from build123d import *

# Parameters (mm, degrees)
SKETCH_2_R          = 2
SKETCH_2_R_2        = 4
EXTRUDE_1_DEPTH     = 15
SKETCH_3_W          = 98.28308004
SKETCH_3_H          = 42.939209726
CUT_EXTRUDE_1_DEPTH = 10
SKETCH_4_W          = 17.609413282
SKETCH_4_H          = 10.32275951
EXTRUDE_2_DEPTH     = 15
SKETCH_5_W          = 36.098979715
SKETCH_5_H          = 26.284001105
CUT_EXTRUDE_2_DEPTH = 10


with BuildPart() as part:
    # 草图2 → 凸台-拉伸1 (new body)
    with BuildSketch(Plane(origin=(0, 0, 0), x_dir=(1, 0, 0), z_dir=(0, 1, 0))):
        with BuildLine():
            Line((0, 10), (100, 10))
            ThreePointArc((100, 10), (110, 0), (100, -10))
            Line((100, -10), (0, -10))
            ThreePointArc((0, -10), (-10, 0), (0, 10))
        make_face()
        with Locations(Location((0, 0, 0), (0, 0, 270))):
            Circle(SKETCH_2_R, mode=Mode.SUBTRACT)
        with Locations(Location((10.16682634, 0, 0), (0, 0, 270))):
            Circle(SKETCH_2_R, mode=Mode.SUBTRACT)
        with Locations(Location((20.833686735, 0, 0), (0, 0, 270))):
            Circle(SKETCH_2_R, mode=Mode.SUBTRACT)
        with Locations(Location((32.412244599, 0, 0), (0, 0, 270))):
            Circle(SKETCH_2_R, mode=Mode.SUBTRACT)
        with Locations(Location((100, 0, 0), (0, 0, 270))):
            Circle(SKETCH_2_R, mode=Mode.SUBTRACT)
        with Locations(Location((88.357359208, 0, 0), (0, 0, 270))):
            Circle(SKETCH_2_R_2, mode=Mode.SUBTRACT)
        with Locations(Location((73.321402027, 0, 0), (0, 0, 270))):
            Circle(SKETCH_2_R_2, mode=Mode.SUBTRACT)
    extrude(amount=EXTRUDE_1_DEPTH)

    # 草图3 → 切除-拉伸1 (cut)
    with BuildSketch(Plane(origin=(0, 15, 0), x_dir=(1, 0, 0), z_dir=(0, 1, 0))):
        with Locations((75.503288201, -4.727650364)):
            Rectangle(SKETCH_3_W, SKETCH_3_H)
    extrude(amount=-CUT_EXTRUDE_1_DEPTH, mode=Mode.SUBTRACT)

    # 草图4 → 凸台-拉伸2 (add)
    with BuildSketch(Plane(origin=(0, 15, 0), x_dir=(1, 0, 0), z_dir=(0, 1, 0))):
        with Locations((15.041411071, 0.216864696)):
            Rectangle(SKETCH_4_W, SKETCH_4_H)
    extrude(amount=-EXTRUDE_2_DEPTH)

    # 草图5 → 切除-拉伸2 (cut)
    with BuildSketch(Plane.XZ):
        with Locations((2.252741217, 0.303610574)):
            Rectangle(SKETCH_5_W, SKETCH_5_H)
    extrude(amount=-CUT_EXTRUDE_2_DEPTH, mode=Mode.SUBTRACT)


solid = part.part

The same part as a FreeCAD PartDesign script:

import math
import FreeCAD as App
import Part
import Sketcher

V = App.Vector


def add_polygon(sketch, points):
    """Adds a closed chain of lines whose ends are joined by coincident constraints."""
    first, n = sketch.GeometryCount, len(points)
    for a, b in zip(points, points[1:] + points[:1]):
        sketch.addGeometry(Part.LineSegment(App.Vector(*a, 0), App.Vector(*b, 0)), False)
    for i in range(n):
        sketch.addConstraint(Sketcher.Constraint("Coincident", first + i, 2, first + (i + 1) % n, 1))

doc = App.newDocument("Part")
body = doc.addObject("PartDesign::Body", "Body")

# Sketch on XZ plane
sketch1 = doc.addObject("Sketcher::SketchObject", "Sketch")
body.addObject(sketch1)
sketch1.AttachmentSupport = (doc.XZ_Plane, [""])
sketch1.MapMode = "FlatFace"
sketch1.addGeometry([
    Part.LineSegment(V(100, -10, 0), V(0, -10, 0)),  # 0
    Part.ArcOfCircle(Part.Circle(V(0, 0, 0), V(0, 0, 1), 10), math.radians(90), math.radians(270)),  # 1
    Part.LineSegment(V(0, 10, 0), V(100, 10, 0)),  # 2
    Part.ArcOfCircle(Part.Circle(V(100, 0, 0), V(0, 0, 1), 10), math.radians(-90), math.radians(90)),  # 3
    Part.Circle(V(100, 0, 0), V(0, 0, 1), 2),  # 4
    Part.Circle(V(88.357359, 0, 0), V(0, 0, 1), 4),  # 5
    Part.Circle(V(73.321402, 0, 0), V(0, 0, 1), 4),  # 6
    Part.Circle(V(32.412245, 0, 0), V(0, 0, 1), 2),  # 7
    Part.Circle(V(20.833687, 0, 0), V(0, 0, 1), 2),  # 8
    Part.Circle(V(10.166826, 0, 0), V(0, 0, 1), 2),  # 9
    Part.Circle(V(0, 0, 0), V(0, 0, 1), 2),  # 10
], False)
sketch1.addConstraint([
    Sketcher.Constraint("Tangent", 0, 2, 1, 2),
    Sketcher.Constraint("Tangent", 1, 1, 2, 1),
    Sketcher.Constraint("Tangent", 2, 2, 3, 2),
    Sketcher.Constraint("Tangent", 3, 1, 0, 1),
    Sketcher.Constraint("Horizontal", 0),
    Sketcher.Constraint("Horizontal", 2),
    Sketcher.Constraint("Coincident", 1, 3, -1, 1),
    Sketcher.Constraint("Coincident", 10, 3, -1, 1),
    Sketcher.Constraint("Coincident", 4, 3, 3, 3),
    Sketcher.Constraint("Equal", 5, 6),
    Sketcher.Constraint("Equal", 4, 7),
    Sketcher.Constraint("Equal", 7, 8),
    Sketcher.Constraint("Equal", 8, 9),
    Sketcher.Constraint("Equal", 9, 10),
    Sketcher.Constraint("PointOnObject", 5, 3, -1),
    Sketcher.Constraint("PointOnObject", 6, 3, -1),
    Sketcher.Constraint("PointOnObject", 7, 3, -1),
    Sketcher.Constraint("PointOnObject", 8, 3, -1),
    Sketcher.Constraint("PointOnObject", 9, 3, -1),
    Sketcher.Constraint("Diameter", 4, 4.0),
    Sketcher.Constraint("Diameter", 5, 8.0),
    Sketcher.Constraint("Radius", 1, 10.0),
    Sketcher.Constraint("DistanceX", 0, 2, 0, 1, 100.0),
    Sketcher.Constraint("DistanceX", -1, 1, 5, 3, 88.357359),
    Sketcher.Constraint("DistanceX", 9, 3, 8, 3, 10.66686),
    Sketcher.Constraint("DistanceX", 9, 3, 7, 3, 22.245418),
    Sketcher.Constraint("DistanceX", -1, 1, 6, 3, 73.321402),
    Sketcher.Constraint("DistanceX", -1, 1, 7, 3, 32.412245),
])
pad1 = doc.addObject("PartDesign::Pad", "Pad")
body.addObject(pad1)
pad1.Profile = sketch1
pad1.Length = 15
pad1.Reversed = True

# Sketch on XZ plane
sketch2 = doc.addObject("Sketcher::SketchObject", "Sketch001")
body.addObject(sketch2)
sketch2.AttachmentSupport = (doc.XZ_Plane, [""])
sketch2.MapMode = "FlatFace"
sketch2.AttachmentOffset = App.Placement(V(0, 0, -15), App.Rotation())
add_polygon(sketch2, [(26.361748, -16.741954), (26.361748, 26.197255), (124.644828, 26.197255), (124.644828, -16.741954)])  # lines 0-3
sketch2.addConstraint([
    Sketcher.Constraint("Vertical", 0),
    Sketcher.Constraint("Horizontal", 1),
    Sketcher.Constraint("Vertical", 2),
    Sketcher.Constraint("Horizontal", 3),
    Sketcher.Constraint("DistanceX", 1, 1, 1, 2, 98.28308),
    Sketcher.Constraint("DistanceY", 0, 1, 0, 2, 42.93921),
    Sketcher.Constraint("DistanceX", -1, 1, 0, 2, 26.361748),
    Sketcher.Constraint("DistanceY", -1, 1, 0, 2, 26.197255),
])
pocket1 = doc.addObject("PartDesign::Pocket", "Pocket")
body.addObject(pocket1)
pocket1.Profile = sketch2
pocket1.Length = 10
pocket1.Reversed = True

# Sketch on XZ plane
sketch3 = doc.addObject("Sketcher::SketchObject", "Sketch002")
body.addObject(sketch3)
sketch3.AttachmentSupport = (doc.XZ_Plane, [""])
sketch3.MapMode = "FlatFace"
sketch3.AttachmentOffset = App.Placement(V(0, 0, -15), App.Rotation())
add_polygon(sketch3, [(6.236704, -5.378244), (6.236704, 4.944515), (23.846118, 4.944515), (23.846118, -5.378244)])  # lines 0-3
sketch3.addConstraint([
    Sketcher.Constraint("Vertical", 0),
    Sketcher.Constraint("Horizontal", 1),
    Sketcher.Constraint("Vertical", 2),
    Sketcher.Constraint("Horizontal", 3),
    Sketcher.Constraint("DistanceY", 0, 1, 0, 2, 10.32276),
    Sketcher.Constraint("DistanceX", 1, 1, 1, 2, 17.609413),
    Sketcher.Constraint("DistanceX", -1, 1, 0, 2, 6.236704),
    Sketcher.Constraint("DistanceY", -1, 1, 0, 2, 4.944515),
])
pad2 = doc.addObject("PartDesign::Pad", "Pad001")
body.addObject(pad2)
pad2.Profile = sketch3
pad2.Length = 15

# Sketch on XZ plane
sketch4 = doc.addObject("Sketcher::SketchObject", "Sketch003")
body.addObject(sketch4)
sketch4.AttachmentSupport = (doc.XZ_Plane, [""])
sketch4.MapMode = "FlatFace"
add_polygon(sketch4, [(-15.796749, 13.445611), (-15.796749, -12.83839), (20.302231, -12.83839), (20.302231, 13.445611)])  # lines 0-3
sketch4.addConstraint([
    Sketcher.Constraint("Vertical", 0),
    Sketcher.Constraint("Horizontal", 1),
    Sketcher.Constraint("Vertical", 2),
    Sketcher.Constraint("Horizontal", 3),
    Sketcher.Constraint("DistanceY", 0, 2, 0, 1, 26.284001),
    Sketcher.Constraint("DistanceX", 1, 1, 1, 2, 36.09898),
    Sketcher.Constraint("DistanceX", 0, 2, -1, 1, 15.796749),
    Sketcher.Constraint("DistanceY", 0, 2, -1, 1, 12.83839),
])
pocket2 = doc.addObject("PartDesign::Pocket", "Pocket001")
body.addObject(pocket2)
pocket2.Profile = sketch4
pocket2.Length = 10

doc.recompute()
